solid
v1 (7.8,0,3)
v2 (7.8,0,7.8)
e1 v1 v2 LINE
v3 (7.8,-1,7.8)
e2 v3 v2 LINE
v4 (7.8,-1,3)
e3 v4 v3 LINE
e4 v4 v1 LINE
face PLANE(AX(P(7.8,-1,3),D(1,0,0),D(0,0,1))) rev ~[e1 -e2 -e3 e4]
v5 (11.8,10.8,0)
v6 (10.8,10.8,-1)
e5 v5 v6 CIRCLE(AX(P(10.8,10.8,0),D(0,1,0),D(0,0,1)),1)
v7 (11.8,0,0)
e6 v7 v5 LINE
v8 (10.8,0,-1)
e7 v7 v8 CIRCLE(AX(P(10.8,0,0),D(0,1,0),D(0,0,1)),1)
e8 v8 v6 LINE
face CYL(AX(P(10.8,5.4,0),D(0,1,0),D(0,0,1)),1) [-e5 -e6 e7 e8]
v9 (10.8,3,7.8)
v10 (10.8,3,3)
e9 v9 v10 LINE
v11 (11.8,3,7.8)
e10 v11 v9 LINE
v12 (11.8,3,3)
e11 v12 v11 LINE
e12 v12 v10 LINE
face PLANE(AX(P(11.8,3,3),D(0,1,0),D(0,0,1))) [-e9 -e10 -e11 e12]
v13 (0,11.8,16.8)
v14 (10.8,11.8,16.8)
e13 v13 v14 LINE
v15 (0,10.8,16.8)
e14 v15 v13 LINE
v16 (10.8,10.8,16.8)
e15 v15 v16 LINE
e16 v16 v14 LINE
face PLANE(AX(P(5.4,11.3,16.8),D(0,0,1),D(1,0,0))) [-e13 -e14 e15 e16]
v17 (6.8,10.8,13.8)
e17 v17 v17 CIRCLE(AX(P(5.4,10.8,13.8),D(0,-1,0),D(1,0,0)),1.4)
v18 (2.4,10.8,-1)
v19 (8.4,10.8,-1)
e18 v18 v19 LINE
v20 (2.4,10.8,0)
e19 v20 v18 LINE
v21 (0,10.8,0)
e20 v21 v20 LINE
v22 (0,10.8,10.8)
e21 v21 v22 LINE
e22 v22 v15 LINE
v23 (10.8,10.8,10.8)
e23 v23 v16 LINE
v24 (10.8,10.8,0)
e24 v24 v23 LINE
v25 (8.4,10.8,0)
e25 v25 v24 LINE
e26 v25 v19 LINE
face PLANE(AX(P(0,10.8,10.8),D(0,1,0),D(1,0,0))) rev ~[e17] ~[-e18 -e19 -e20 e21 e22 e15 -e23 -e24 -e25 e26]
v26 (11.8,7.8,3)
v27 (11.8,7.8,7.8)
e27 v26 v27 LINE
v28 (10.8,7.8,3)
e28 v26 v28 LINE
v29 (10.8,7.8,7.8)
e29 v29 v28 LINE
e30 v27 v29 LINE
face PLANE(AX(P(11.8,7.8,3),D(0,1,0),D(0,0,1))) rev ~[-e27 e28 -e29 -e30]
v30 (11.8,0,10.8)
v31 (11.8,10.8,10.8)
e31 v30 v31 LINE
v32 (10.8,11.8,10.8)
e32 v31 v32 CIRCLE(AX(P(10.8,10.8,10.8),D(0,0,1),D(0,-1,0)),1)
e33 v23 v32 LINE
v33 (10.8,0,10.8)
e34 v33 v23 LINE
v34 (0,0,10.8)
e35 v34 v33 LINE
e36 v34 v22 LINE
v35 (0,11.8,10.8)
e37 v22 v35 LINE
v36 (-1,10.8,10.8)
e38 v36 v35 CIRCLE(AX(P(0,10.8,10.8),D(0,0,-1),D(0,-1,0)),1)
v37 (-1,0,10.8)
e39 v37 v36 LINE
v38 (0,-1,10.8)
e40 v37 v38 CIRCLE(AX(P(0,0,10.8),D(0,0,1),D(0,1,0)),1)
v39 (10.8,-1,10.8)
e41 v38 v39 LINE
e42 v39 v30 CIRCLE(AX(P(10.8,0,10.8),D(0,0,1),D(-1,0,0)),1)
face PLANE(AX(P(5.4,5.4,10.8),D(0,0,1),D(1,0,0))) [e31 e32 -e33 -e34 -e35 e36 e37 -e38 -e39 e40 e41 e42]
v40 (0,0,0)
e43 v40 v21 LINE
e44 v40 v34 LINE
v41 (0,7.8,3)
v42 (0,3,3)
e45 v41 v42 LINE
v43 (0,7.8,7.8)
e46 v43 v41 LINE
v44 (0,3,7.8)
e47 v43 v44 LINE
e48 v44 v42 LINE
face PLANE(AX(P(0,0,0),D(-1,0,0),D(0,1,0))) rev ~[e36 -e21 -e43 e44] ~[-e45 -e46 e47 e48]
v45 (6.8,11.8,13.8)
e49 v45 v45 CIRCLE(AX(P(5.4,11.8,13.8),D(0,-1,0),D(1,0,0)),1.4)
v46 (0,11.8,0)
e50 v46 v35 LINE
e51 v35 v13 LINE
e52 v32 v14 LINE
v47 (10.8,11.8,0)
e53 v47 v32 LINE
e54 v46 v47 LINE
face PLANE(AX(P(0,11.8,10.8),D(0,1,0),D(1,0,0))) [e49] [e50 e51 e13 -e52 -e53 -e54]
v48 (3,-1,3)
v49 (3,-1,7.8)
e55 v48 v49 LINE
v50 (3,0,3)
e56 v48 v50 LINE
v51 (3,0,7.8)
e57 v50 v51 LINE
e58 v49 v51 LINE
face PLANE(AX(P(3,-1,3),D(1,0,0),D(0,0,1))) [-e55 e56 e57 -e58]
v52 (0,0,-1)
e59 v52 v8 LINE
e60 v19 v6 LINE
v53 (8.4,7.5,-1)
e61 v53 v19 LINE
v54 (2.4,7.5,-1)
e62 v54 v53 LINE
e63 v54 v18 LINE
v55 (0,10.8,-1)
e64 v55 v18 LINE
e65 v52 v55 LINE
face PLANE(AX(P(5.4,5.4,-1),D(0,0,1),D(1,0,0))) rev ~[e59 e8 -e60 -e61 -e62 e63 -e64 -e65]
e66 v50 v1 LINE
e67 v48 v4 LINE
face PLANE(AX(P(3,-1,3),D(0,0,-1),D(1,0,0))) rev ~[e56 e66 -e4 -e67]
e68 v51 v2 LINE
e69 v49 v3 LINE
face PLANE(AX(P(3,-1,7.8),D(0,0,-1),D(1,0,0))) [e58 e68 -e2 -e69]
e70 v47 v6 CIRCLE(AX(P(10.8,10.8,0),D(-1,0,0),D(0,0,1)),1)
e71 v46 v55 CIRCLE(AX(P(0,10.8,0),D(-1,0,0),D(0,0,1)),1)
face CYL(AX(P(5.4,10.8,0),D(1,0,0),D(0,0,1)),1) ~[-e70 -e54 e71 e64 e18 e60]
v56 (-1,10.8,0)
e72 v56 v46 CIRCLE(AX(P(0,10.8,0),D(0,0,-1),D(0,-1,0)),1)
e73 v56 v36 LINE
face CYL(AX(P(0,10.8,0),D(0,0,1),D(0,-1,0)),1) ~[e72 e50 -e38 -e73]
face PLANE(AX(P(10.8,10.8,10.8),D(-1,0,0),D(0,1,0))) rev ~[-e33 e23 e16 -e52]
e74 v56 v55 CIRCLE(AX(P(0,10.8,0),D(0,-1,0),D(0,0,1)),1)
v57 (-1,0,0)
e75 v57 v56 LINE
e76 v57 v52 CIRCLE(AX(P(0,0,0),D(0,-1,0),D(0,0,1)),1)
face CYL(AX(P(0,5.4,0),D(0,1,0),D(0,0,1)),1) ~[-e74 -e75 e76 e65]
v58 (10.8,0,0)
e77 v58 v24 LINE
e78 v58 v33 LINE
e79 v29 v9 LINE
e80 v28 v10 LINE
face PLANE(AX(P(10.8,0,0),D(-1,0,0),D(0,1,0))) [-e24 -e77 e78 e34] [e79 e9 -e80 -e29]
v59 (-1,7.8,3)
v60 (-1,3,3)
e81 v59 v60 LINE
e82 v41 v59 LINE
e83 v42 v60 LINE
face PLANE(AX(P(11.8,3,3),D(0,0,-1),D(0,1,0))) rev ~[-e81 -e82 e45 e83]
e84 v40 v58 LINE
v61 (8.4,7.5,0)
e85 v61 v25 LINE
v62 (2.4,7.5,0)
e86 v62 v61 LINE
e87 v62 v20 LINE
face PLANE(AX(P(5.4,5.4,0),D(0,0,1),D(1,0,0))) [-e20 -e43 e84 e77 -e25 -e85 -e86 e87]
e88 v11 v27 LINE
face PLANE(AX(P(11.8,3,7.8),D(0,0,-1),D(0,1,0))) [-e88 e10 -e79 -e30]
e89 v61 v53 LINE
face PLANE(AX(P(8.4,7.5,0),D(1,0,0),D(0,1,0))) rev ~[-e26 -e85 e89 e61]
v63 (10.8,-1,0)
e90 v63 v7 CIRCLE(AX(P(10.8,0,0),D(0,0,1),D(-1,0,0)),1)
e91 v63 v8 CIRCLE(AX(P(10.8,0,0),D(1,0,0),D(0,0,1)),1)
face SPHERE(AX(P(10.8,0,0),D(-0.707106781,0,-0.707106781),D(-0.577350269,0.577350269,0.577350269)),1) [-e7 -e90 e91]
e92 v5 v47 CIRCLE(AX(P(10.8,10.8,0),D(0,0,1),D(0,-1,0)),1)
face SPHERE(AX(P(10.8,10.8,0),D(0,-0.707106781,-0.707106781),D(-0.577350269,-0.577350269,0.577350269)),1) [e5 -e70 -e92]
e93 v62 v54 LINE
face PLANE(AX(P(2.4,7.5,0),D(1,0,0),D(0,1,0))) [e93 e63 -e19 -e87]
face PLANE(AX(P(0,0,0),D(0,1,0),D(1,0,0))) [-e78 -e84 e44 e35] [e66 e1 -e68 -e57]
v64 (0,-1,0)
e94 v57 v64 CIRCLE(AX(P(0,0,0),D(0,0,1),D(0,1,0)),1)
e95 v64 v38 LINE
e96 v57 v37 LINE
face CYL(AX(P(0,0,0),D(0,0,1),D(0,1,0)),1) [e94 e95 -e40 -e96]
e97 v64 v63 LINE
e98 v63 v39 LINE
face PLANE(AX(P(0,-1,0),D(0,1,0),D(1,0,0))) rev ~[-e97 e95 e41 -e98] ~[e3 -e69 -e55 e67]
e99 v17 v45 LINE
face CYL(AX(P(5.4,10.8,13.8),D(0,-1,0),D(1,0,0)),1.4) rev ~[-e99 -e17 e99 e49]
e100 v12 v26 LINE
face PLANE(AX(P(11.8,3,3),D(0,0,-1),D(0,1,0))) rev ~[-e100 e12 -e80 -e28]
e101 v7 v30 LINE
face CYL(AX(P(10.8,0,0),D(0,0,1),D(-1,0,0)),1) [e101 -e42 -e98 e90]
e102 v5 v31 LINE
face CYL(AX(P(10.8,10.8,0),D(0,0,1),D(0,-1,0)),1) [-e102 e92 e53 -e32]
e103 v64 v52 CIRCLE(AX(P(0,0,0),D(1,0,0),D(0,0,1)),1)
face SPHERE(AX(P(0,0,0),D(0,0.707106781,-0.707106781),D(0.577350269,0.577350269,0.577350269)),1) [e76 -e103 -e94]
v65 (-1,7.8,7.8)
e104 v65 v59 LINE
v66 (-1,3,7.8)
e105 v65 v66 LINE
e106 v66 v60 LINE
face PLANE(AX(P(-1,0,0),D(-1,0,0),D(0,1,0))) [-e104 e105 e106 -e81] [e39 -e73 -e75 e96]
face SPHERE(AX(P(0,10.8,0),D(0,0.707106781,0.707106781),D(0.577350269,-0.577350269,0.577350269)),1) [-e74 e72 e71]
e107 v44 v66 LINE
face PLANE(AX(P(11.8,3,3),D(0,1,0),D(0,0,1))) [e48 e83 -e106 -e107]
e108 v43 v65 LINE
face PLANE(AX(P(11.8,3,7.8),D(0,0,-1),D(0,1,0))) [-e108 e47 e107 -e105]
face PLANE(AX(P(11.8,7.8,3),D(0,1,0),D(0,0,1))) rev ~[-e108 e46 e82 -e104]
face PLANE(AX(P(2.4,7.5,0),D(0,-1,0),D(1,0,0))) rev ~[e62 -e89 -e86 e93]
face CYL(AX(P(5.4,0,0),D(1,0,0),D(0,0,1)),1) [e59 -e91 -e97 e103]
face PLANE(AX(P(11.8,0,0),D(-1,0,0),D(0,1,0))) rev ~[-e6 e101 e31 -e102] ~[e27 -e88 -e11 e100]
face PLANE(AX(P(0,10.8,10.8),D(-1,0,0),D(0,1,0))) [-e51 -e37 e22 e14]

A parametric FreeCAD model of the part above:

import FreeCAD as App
import Part
import Sketcher

V = App.Vector


def faces_at(feature, points):
    """Names of the faces that lie closest to the given points."""
    faces = feature.Shape.Faces
    near = lambda p: min(range(len(faces)), key=lambda i: faces[i].distToShape(Part.Vertex(*p))[0])
    return sorted({f"Face{near(p) + 1}" for p in points})

doc = App.newDocument("Part")
body = doc.addObject("PartDesign::Body", "Body")

sketch1 = body.newObject("Sketcher::SketchObject", "Sketch")
sketch1.AttachmentSupport = (doc.getObject("XY_Plane"), [""])
sketch1.MapMode = "FlatFace"
sketch1.addGeometry([
    Part.LineSegment(V(0, 11, 0), V(0, 0, 0)),
    Part.LineSegment(V(0, 0, 0), V(11, 0, 0)),
    Part.LineSegment(V(11, 0, 0), V(11, 11, 0)),
    Part.LineSegment(V(11, 11, 0), V(0, 11, 0)),
], False)
sketch1.addConstraint([
    Sketcher.Constraint("Coincident", 0, 2, 1, 1),
    Sketcher.Constraint("Coincident", 1, 2, 2, 1),
    Sketcher.Constraint("Coincident", 2, 2, 3, 1),
    Sketcher.Constraint("Coincident", 3, 2, 0, 1),
    Sketcher.Constraint("Vertical", 0),
    Sketcher.Constraint("Horizontal", 1),
    Sketcher.Constraint("Vertical", 2),
    Sketcher.Constraint("Horizontal", 3),
    Sketcher.Constraint("Coincident", 0, 2, -1, 1),
    Sketcher.Constraint("Equal", 3, 0),
    Sketcher.Constraint("DistanceX", 1, 1, 1, 2, 10.8),
])
pad1 = body.newObject("PartDesign::Pad", "Pad")
pad1.Profile = sketch1
pad1.Length = 10.8
doc.recompute()

thickness = body.newObject("PartDesign::Thickness", "Thickness")
thickness.Base = (pad1, faces_at(pad1, [(5.4, 5.4, 10.8)]))
thickness.Value = 1
thickness.Reversed = False
thickness.Join = "Arc"

sketch2 = body.newObject("Sketcher::SketchObject", "Sketch001")
sketch2.AttachmentSupport = (doc.getObject("XY_Plane"), [""])
sketch2.MapMode = "FlatFace"
sketch2.AttachmentOffset = App.Placement(V(0, 0, 10.8), App.Rotation())
sketch2.addGeometry([
    Part.LineSegment(V(0, 11.8, 0), V(0, 10.8, 0)),
    Part.LineSegment(V(0, 10.8, 0), V(10.8, 10.8, 0)),
    Part.LineSegment(V(10.8, 10.8, 0), V(10.8, 11.8, 0)),
    Part.LineSegment(V(10.8, 11.8, 0), V(0, 11.8, 0)),
], False)
sketch2.addConstraint([
    Sketcher.Constraint("Coincident", 0, 2, 1, 1),
    Sketcher.Constraint("Coincident", 1, 2, 2, 1),
    Sketcher.Constraint("Coincident", 2, 2, 3, 1),
    Sketcher.Constraint("Coincident", 3, 2, 0, 1),
    Sketcher.Constraint("Vertical", 0),
    Sketcher.Constraint("Horizontal", 1),
    Sketcher.Constraint("Vertical", 2),
    Sketcher.Constraint("Horizontal", 3),
    Sketcher.Constraint("PointOnObject", 0, 2, -2),
    Sketcher.Constraint("DistanceY", 0, 2, 0, 1, 1.0),
    Sketcher.Constraint("DistanceX", 1, 1, 1, 2, 10.8),
    Sketcher.Constraint("DistanceY", -1, 1, 0, 2, 10.8),
])
pad2 = body.newObject("PartDesign::Pad", "Pad001")
pad2.Profile = sketch2
pad2.Length = 6

sketch3 = body.newObject("Sketcher::SketchObject", "Sketch002")
sketch3.AttachmentSupport = (doc.getObject("XZ_Plane"), [""])
sketch3.MapMode = "FlatFace"
sketch3.AttachmentOffset = App.Placement(V(0, 0, -10.8), App.Rotation())
sketch3.addGeometry(Part.Circle(V(5.4, 13.8, 0), V(0, 0, 1), 1.4), False)
sketch3.addConstraint([
    Sketcher.Constraint("Diameter", 0, 2.8),
    Sketcher.Constraint("DistanceX", -1, 1, 0, 3, 5.4),
    Sketcher.Constraint("DistanceY", -1, 1, 0, 3, 13.8),
])
pocket1 = body.newObject("PartDesign::Pocket", "Pocket")
pocket1.Profile = sketch3
pocket1.Type = "ThroughAll"

sketch4 = body.newObject("Sketcher::SketchObject", "Sketch003")
sketch4.AttachmentSupport = (doc.getObject("XY_Plane"), [""])
sketch4.MapMode = "FlatFace"
sketch4.addGeometry([
    Part.LineSegment(V(2.4, 10.8, 0), V(2.4, 7.5, 0)),
    Part.LineSegment(V(2.4, 7.5, 0), V(8.4, 7.5, 0)),
    Part.LineSegment(V(8.4, 7.5, 0), V(8.4, 10.8, 0)),
    Part.LineSegment(V(8.4, 10.8, 0), V(2.4, 10.8, 0)),
], False)
sketch4.addConstraint([
    Sketcher.Constraint("Coincident", 0, 2, 1, 1),
    Sketcher.Constraint("Coincident", 1, 2, 2, 1),
    Sketcher.Constraint("Coincident", 2, 2, 3, 1),
    Sketcher.Constraint("Coincident", 3, 2, 0, 1),
    Sketcher.Constraint("Vertical", 0),
    Sketcher.Constraint("Horizontal", 1),
    Sketcher.Constraint("Vertical", 2),
    Sketcher.Constraint("Horizontal", 3),
    Sketcher.Constraint("DistanceX", 1, 1, 1, 2, 6.0),
    Sketcher.Constraint("DistanceY", 0, 2, 0, 1, 3.3),
    Sketcher.Constraint("DistanceX", -1, 1, 0, 2, 2.4),
    Sketcher.Constraint("DistanceY", -1, 1, 0, 2, 7.5),
])
pocket2 = body.newObject("PartDesign::Pocket", "Pocket001")
pocket2.Profile = sketch4
pocket2.Length = 5

sketch5 = body.newObject("Sketcher::SketchObject", "Sketch004")
sketch5.AttachmentSupport = (doc.getObject("XZ_Plane"), [""])
sketch5.MapMode = "FlatFace"
sketch5.AttachmentOffset = App.Placement(V(0, 0, 1), App.Rotation())
sketch5.addGeometry([
    Part.LineSegment(V(3, 7.8, 0), V(3, 3, 0)),
    Part.LineSegment(V(3, 3, 0), V(7.8, 3, 0)),
    Part.LineSegment(V(7.8, 3, 0), V(7.8, 7.8, 0)),
    Part.LineSegment(V(7.8, 7.8, 0), V(3, 7.8, 0)),
], False)
sketch5.addConstraint([
    Sketcher.Constraint("Coincident", 0, 2, 1, 1),
    Sketcher.Constraint("Coincident", 1, 2, 2, 1),
    Sketcher.Constraint("Coincident", 2, 2, 3, 1),
    Sketcher.Constraint("Coincident", 3, 2, 0, 1),
    Sketcher.Constraint("Vertical", 0),
    Sketcher.Constraint("Horizontal", 1),
    Sketcher.Constraint("Vertical", 2),
    Sketcher.Constraint("Horizontal", 3),
    Sketcher.Constraint("Equal", 3, 0),
    Sketcher.Constraint("DistanceX", 1, 1, 1, 2, 4.8),
    Sketcher.Constraint("DistanceX", -1, 1, 0, 2, 3.0),
    Sketcher.Constraint("DistanceY", -1, 1, 0, 2, 3.0),
])
pocket3 = body.newObject("PartDesign::Pocket", "Pocket002")
pocket3.Profile = sketch5
pocket3.Length = 1

sketch6 = body.newObject("Sketcher::SketchObject", "Sketch005")
sketch6.AttachmentSupport = (doc.getObject("YZ_Plane"), [""])
sketch6.MapMode = "FlatFace"
sketch6.AttachmentOffset = App.Placement(V(0, 0, 11.8), App.Rotation())
sketch6.addGeometry([
    Part.LineSegment(V(3, 7.8, 0), V(3, 3, 0)),
    Part.LineSegment(V(3, 3, 0), V(7.8, 3, 0)),
    Part.LineSegment(V(7.8, 3, 0), V(7.8, 7.8, 0)),
    Part.LineSegment(V(7.8, 7.8, 0), V(3, 7.8, 0)),
], False)
sketch6.addConstraint([
    Sketcher.Constraint("Coincident", 0, 2, 1, 1),
    Sketcher.Constraint("Coincident", 1, 2, 2, 1),
    Sketcher.Constraint("Coincident", 2, 2, 3, 1),
    Sketcher.Constraint("Coincident", 3, 2, 0, 1),
    Sketcher.Constraint("Vertical", 0),
    Sketcher.Constraint("Horizontal", 1),
    Sketcher.Constraint("Vertical", 2),
    Sketcher.Constraint("Horizontal", 3),
    Sketcher.Constraint("Equal", 3, 0),
    Sketcher.Constraint("DistanceX", 1, 1, 1, 2, 4.8),
    Sketcher.Constraint("DistanceX", -1, 1, 0, 2, 3.0),
    Sketcher.Constraint("DistanceY", -1, 1, 0, 2, 3.0),
])
pocket4 = body.newObject("PartDesign::Pocket", "Pocket003")
pocket4.Profile = sketch6
pocket4.Type = "ThroughAll"

doc.recompute()
